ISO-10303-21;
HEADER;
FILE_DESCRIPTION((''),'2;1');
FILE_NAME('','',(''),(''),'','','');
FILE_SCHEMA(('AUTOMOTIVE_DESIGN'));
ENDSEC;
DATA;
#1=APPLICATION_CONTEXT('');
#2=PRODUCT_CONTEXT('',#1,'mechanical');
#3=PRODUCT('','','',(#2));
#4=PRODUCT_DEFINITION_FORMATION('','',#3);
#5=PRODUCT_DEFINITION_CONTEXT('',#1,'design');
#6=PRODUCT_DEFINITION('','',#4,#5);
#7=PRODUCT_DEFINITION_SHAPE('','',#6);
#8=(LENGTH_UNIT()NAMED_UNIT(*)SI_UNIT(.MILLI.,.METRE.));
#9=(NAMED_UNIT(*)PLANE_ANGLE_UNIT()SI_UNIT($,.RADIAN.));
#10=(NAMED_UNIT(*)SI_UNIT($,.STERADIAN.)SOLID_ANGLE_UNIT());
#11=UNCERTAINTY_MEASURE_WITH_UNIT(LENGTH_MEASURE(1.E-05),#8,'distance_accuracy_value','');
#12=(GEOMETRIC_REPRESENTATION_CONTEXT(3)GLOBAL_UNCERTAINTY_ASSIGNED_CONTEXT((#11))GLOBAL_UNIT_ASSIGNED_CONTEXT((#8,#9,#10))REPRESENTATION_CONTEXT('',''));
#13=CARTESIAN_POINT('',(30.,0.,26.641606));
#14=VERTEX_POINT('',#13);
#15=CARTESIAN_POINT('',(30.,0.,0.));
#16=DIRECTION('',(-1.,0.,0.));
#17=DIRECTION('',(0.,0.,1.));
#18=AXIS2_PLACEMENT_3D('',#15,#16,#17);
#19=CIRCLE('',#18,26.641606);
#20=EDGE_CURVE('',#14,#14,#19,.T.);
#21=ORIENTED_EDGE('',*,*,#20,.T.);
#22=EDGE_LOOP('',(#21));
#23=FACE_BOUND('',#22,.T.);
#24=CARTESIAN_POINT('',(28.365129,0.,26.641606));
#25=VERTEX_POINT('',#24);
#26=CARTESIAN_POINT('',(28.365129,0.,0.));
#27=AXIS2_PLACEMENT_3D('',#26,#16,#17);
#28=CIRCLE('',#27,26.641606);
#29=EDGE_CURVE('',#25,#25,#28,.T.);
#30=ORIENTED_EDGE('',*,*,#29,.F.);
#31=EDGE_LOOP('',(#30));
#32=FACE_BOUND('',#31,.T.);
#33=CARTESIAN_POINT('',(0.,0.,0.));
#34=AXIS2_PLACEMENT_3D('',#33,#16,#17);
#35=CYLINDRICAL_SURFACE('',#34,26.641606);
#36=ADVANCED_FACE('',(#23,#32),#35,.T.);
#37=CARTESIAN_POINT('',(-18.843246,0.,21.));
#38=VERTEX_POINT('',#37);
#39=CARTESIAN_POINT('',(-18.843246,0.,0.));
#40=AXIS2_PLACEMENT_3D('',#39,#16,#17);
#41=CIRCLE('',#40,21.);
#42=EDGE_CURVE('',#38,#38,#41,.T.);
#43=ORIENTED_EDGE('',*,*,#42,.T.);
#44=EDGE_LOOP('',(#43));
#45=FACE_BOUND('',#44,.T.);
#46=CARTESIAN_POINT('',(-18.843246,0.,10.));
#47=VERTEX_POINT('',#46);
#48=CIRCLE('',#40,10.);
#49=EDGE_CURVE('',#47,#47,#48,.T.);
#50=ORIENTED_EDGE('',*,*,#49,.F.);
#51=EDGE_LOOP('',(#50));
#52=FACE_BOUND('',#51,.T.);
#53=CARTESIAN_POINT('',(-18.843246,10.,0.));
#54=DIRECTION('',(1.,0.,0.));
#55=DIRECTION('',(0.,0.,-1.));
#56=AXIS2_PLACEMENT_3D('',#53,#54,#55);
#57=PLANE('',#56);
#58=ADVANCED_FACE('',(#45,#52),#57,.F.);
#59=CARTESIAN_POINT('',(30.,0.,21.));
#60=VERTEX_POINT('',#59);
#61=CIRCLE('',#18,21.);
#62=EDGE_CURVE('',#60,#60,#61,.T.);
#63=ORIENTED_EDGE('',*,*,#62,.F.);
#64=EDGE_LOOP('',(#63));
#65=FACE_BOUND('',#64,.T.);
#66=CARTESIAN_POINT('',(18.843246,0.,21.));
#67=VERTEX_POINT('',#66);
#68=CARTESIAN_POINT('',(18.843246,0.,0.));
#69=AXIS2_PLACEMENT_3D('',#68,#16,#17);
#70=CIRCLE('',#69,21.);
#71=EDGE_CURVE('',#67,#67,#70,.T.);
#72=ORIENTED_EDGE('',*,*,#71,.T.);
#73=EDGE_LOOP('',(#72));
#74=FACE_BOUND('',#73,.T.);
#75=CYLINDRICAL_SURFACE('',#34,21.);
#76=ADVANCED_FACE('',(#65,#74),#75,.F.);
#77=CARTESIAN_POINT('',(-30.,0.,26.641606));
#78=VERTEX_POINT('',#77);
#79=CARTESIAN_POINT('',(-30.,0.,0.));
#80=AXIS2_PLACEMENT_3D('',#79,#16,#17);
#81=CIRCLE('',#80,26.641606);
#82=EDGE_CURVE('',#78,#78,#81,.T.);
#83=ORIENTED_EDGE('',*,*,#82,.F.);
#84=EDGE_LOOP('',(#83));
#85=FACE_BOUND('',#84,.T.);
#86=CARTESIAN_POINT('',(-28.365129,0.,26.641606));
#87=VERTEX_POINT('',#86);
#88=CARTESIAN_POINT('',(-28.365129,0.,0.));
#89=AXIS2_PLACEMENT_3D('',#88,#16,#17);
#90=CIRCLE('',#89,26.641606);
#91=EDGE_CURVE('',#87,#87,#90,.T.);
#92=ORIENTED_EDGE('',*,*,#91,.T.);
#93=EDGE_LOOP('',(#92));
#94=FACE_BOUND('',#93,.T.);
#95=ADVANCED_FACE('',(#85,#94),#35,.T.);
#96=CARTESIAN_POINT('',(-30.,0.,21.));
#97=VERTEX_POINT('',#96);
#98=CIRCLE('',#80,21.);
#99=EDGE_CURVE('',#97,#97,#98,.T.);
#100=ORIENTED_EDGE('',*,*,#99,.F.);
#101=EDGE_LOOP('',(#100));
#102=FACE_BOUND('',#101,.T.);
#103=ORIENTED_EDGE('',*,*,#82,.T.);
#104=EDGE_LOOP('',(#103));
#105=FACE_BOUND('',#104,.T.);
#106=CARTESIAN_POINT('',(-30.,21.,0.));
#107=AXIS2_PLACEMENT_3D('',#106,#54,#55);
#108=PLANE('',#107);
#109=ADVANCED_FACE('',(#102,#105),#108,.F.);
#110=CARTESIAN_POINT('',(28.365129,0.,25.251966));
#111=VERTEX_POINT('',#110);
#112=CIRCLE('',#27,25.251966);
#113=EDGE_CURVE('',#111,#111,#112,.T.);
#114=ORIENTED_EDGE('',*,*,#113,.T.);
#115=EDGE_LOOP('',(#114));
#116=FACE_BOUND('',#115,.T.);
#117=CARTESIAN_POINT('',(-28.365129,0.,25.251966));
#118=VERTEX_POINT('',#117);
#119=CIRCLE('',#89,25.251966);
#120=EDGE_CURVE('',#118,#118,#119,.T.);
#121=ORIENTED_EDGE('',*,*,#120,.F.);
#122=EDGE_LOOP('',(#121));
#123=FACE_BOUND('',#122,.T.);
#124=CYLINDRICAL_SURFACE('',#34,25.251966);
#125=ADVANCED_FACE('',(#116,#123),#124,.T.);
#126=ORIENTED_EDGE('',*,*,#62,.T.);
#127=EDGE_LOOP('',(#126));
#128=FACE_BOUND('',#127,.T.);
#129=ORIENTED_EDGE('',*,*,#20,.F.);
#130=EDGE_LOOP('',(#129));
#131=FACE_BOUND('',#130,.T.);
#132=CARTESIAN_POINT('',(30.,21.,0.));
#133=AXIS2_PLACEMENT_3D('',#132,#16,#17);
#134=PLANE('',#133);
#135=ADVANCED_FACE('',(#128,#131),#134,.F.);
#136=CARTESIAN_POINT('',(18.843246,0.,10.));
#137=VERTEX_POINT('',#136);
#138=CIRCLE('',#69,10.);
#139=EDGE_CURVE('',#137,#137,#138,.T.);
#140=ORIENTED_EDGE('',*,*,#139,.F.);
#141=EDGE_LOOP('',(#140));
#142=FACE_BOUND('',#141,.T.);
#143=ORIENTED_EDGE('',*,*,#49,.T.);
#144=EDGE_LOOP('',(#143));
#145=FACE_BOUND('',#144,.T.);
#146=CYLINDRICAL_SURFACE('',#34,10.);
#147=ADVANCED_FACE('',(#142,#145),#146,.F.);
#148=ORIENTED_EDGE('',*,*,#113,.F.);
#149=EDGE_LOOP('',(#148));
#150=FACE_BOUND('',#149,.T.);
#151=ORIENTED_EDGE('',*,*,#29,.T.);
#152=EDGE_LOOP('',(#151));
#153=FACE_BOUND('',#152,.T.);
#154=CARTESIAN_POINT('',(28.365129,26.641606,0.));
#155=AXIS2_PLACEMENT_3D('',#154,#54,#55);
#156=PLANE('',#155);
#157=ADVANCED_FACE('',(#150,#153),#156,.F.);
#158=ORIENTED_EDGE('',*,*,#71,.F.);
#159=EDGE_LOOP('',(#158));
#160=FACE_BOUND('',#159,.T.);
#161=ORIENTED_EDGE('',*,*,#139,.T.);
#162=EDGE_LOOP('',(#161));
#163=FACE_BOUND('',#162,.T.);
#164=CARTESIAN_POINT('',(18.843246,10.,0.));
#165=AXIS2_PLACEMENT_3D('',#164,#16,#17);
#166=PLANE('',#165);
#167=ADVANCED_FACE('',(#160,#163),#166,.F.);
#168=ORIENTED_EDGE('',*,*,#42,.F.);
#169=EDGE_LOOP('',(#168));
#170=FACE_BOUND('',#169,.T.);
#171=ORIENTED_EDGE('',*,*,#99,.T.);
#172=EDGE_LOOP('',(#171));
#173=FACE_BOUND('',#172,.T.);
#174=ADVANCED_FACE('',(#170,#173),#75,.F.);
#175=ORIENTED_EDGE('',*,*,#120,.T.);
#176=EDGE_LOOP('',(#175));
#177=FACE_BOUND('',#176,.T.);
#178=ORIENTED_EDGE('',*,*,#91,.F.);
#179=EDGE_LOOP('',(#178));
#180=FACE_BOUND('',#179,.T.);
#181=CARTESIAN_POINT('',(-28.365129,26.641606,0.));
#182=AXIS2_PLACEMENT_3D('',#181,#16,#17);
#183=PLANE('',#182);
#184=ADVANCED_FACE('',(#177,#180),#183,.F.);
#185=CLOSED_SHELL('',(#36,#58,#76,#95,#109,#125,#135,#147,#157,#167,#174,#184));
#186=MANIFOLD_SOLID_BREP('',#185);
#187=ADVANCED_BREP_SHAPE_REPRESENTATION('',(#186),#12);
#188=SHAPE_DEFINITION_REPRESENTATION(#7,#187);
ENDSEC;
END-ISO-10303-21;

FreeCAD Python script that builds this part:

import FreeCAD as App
import Part
import Sketcher

V = App.Vector
Q = App.Units.Quantity

doc = App.newDocument("Part")
params = doc.addObject("Spreadsheet::Sheet", "Params")
for row, (alias, value) in enumerate([
    ("sketch1_height", "11 mm"),
    ("revolution_angle", "360 deg"),
], start=1):
    params.set(f"A{row}", alias)
    params.set(f"B{row}", "=" + value)
    params.setAlias(f"B{row}", alias)

body = doc.addObject("PartDesign::Body", "Body")

# Sketch on XY plane
sketch1 = body.newObject("Sketcher::SketchObject", "Sketch")
sketch1.AttachmentSupport = (doc.getObject("XY_Plane"), [""])
sketch1.MapMode = "FlatFace"
sketch1.addGeometry([
    Part.LineSegment(V(18.8, 21, 0), V(30, 21, 0)),  # 0
    Part.LineSegment(V(30, 21, 0), V(30, 26.6, 0)),  # 1
    Part.LineSegment(V(30, 26.6, 0), V(28.4, 26.6, 0)),  # 2
    Part.LineSegment(V(28.4, 26.6, 0), V(28.4, 25.3, 0)),  # 3
    Part.LineSegment(V(28.4, 25.3, 0), V(-28.4, 25.3, 0)),  # 4
    Part.LineSegment(V(-28.4, 25.3, 0), V(-28.4, 26.6, 0)),  # 5
    Part.LineSegment(V(-28.4, 26.6, 0), V(-30, 26.6, 0)),  # 6
    Part.LineSegment(V(-30, 26.6, 0), V(-30, 21, 0)),  # 7
    Part.LineSegment(V(-30, 21, 0), V(-18.8, 21, 0)),  # 8
    Part.LineSegment(V(-18.8, 21, 0), V(-18.8, 10, 0)),  # 9
    Part.LineSegment(V(-18.8, 10, 0), V(18.8, 10, 0)),  # 10
    Part.LineSegment(V(18.8, 10, 0), V(18.8, 21, 0)),  # 11
], False)
sketch1.addConstraint([
    Sketcher.Constraint("Coincident", 0, 2, 1, 1),
    Sketcher.Constraint("Coincident", 1, 2, 2, 1),
    Sketcher.Constraint("Coincident", 2, 2, 3, 1),
    Sketcher.Constraint("Coincident", 3, 2, 4, 1),
    Sketcher.Constraint("Coincident", 4, 2, 5, 1),
    Sketcher.Constraint("Coincident", 5, 2, 6, 1),
    Sketcher.Constraint("Coincident", 6, 2, 7, 1),
    Sketcher.Constraint("Coincident", 7, 2, 8, 1),
    Sketcher.Constraint("Coincident", 8, 2, 9, 1),
    Sketcher.Constraint("Coincident", 9, 2, 10, 1),
    Sketcher.Constraint("Coincident", 10, 2, 11, 1),
    Sketcher.Constraint("Coincident", 11, 2, 0, 1),
    Sketcher.Constraint("Horizontal", 0),
    Sketcher.Constraint("Vertical", 1),
    Sketcher.Constraint("Horizontal", 2),
    Sketcher.Constraint("Vertical", 3),
    Sketcher.Constraint("Horizontal", 4),
    Sketcher.Constraint("Vertical", 5),
    Sketcher.Constraint("Horizontal", 6),
    Sketcher.Constraint("Vertical", 7),
    Sketcher.Constraint("Horizontal", 8),
    Sketcher.Constraint("Vertical", 9),
    Sketcher.Constraint("Horizontal", 10),
    Sketcher.Constraint("Vertical", 11),
    Sketcher.Constraint("Symmetric", 2, 2, 5, 2, -2),
    Sketcher.Constraint("Symmetric", 0, 2, 7, 2, -2),
    Sketcher.Constraint("Equal", 0, 8),
    Sketcher.Constraint("DistanceY", 9, 2, 9, 1, Q("11 mm")),
    Sketcher.Constraint("DistanceX", -1, 1, 0, 2, Q("30 mm")),
    Sketcher.Constraint("DistanceY", -1, 1, 0, 2, Q("21 mm")),
    Sketcher.Constraint("DistanceX", 2, 2, 2, 1, Q("1.634871 mm")),
    Sketcher.Constraint("DistanceX", 10, 1, 10, 2, Q("37.686491 mm")),
    Sketcher.Constraint("DistanceY", 3, 2, 3, 1, Q("1.38964 mm")),
    Sketcher.Constraint("DistanceY", 1, 1, 1, 2, Q("5.641606 mm")),
])
sketch1.setExpression("Constraints[27]", "Params.sketch1_height")
revolution = body.newObject("PartDesign::Revolution", "Revolution")
revolution.Profile = sketch1
revolution.ReferenceAxis = (sketch1, ["H_Axis"])
revolution.setExpression("Angle", "Params.revolution_angle")

doc.recompute()
